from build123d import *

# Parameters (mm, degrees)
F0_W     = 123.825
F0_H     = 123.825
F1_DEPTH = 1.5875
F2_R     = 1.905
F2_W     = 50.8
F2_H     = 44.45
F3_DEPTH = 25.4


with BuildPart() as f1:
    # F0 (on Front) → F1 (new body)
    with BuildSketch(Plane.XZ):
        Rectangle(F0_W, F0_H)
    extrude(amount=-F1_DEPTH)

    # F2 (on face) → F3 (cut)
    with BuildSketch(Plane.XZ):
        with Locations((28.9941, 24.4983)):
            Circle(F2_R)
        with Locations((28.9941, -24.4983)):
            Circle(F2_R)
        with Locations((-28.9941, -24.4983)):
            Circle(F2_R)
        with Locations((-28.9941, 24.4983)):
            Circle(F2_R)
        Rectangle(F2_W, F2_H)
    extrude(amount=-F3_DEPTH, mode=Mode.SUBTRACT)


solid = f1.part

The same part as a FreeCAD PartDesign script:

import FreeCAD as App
import Part
import Sketcher
Q = App.Units.Quantity


def add_polygon(sketch, points):
    """Adds a closed chain of lines whose ends are joined by coincident constraints."""
    first, n = sketch.GeometryCount, len(points)
    for a, b in zip(points, points[1:] + points[:1]):
        sketch.addGeometry(Part.LineSegment(App.Vector(*a, 0), App.Vector(*b, 0)), False)
    for i in range(n):
        sketch.addConstraint(Sketcher.Constraint("Coincident", first + i, 2, first + (i + 1) % n, 1))

doc = App.newDocument("Part")
body = doc.addObject("PartDesign::Body", "Body")

# Sketch on XZ plane
sketch1 = body.newObject("Sketcher::SketchObject", "Sketch")
sketch1.AttachmentSupport = (doc.getObject("XZ_Plane"), [""])
sketch1.MapMode = "FlatFace"
add_polygon(sketch1, [(-62, 62), (-62, -62), (62, -62), (62, 62)])  # lines 0-3
sketch1.addConstraint([
    Sketcher.Constraint("Vertical", 0),
    Sketcher.Constraint("Horizontal", 1),
    Sketcher.Constraint("Vertical", 2),
    Sketcher.Constraint("Horizontal", 3),
    Sketcher.Constraint("Symmetric", 0, 2, 2, 2, -1, 1),
    Sketcher.Constraint("Equal", 3, 0),
    Sketcher.Constraint("DistanceX", 1, 1, 1, 2, Q("4.875 in")),
])
pad1 = body.newObject("PartDesign::Pad", "Pad")
pad1.Profile = sketch1
pad1.Length = Q("0.0625 in")
pad1.Reversed = True

# Sketch on XZ plane
sketch2 = body.newObject("Sketcher::SketchObject", "Sketch001")
sketch2.AttachmentSupport = (doc.getObject("XZ_Plane"), [""])
sketch2.MapMode = "FlatFace"
sketch2.addGeometry(Part.Circle(App.Vector(29, 24.5, 0), App.Vector(0, 0, 1), 1.9), False)  # 0
sketch2.addGeometry(Part.Circle(App.Vector(29, -24.5, 0), App.Vector(0, 0, 1), 1.9), False)  # 1
sketch2.addGeometry(Part.Circle(App.Vector(-29, -24.5, 0), App.Vector(0, 0, 1), 1.9), False)  # 2
sketch2.addGeometry(Part.Circle(App.Vector(-29, 24.5, 0), App.Vector(0, 0, 1), 1.9), False)  # 3
add_polygon(sketch2, [(-25.4, 22.2), (-25.4, -22.2), (25.4, -22.2), (25.4, 22.2)])  # lines 4-7
sketch2.addConstraint([
    Sketcher.Constraint("Vertical", 4),
    Sketcher.Constraint("Horizontal", 5),
    Sketcher.Constraint("Vertical", 6),
    Sketcher.Constraint("Horizontal", 7),
    Sketcher.Constraint("Equal", 0, 1),
    Sketcher.Constraint("Equal", 1, 2),
    Sketcher.Constraint("Equal", 2, 3),
    Sketcher.Constraint("Symmetric", 0, 3, 2, 3, -1, 1),
    Sketcher.Constraint("Symmetric", 1, 3, 3, 3, -1, 1),
    Sketcher.Constraint("Symmetric", 4, 2, 6, 2, -1, 1),
    Sketcher.Constraint("Symmetric", 1, 3, 2, 3, -2),
    Sketcher.Constraint("Diameter", 0, Q("0.15 in")),
    Sketcher.Constraint("DistanceX", 5, 1, 5, 2, Q("2 in")),
    Sketcher.Constraint("DistanceY", 4, 2, 4, 1, Q("1.75 in")),
    Sketcher.Constraint("DistanceY", 1, 3, 0, 3, Q("1.929 in")),
    Sketcher.Constraint("DistanceX", 2, 3, 1, 3, Q("2.283 in")),
])
pocket1 = body.newObject("PartDesign::Pocket", "Pocket")
pocket1.Profile = sketch2
pocket1.Length = Q("1 in")

doc.recompute()
